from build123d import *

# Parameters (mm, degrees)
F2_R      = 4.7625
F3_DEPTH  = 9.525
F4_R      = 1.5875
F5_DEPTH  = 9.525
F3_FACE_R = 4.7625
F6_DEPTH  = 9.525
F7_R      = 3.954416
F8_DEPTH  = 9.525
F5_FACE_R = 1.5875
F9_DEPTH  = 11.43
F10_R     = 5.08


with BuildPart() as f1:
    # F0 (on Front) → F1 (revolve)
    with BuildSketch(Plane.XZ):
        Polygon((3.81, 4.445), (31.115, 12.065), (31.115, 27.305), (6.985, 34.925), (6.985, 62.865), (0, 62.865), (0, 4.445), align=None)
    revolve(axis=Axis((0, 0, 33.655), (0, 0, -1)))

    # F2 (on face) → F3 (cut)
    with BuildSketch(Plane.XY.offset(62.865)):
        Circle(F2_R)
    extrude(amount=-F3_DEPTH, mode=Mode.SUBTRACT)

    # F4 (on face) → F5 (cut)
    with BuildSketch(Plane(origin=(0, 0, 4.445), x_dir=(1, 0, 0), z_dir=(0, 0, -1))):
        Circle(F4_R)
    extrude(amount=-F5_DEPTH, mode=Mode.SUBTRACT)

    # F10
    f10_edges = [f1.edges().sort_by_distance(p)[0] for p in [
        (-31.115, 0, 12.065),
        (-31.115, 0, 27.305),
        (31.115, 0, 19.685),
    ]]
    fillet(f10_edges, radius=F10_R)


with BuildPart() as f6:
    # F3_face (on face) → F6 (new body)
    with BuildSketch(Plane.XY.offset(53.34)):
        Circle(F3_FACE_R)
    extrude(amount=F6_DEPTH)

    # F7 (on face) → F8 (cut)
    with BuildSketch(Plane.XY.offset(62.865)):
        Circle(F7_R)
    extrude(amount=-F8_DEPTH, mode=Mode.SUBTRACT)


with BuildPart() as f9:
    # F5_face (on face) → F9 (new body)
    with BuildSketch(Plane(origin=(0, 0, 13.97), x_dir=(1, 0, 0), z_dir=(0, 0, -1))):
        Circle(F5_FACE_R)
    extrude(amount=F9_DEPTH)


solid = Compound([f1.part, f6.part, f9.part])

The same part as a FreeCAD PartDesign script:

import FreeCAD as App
import Part
import Sketcher
Q = App.Units.Quantity


def edges_at(feature, points):
    """Names of the edges that pass closest to the given points."""
    edges = feature.Shape.Edges
    near = lambda p: min(range(len(edges)), key=lambda i: edges[i].distToShape(Part.Vertex(*p))[0])
    return sorted({f"Edge{near(p) + 1}" for p in points})


def add_polygon(sketch, points):
    """Adds a closed chain of lines whose ends are joined by coincident constraints."""
    first, n = sketch.GeometryCount, len(points)
    for a, b in zip(points, points[1:] + points[:1]):
        sketch.addGeometry(Part.LineSegment(App.Vector(*a, 0), App.Vector(*b, 0)), False)
    for i in range(n):
        sketch.addConstraint(Sketcher.Constraint("Coincident", first + i, 2, first + (i + 1) % n, 1))

doc = App.newDocument("Part")
body = doc.addObject("PartDesign::Body", "Body")

# Sketch on XZ plane
sketch1 = body.newObject("Sketcher::SketchObject", "Sketch")
sketch1.AttachmentSupport = (doc.getObject("XZ_Plane"), [""])
sketch1.MapMode = "FlatFace"
add_polygon(sketch1, [(3.81, 4.445), (31.115, 12.065), (31.115, 27.305), (6.985, 34.925), (6.985, 62.865), (0, 62.865), (0, 4.445)])  # lines 0-6
sketch1.addConstraint(Sketcher.Constraint("Vertical", 1))
sketch1.addConstraint(Sketcher.Constraint("Vertical", 3))
sketch1.addConstraint(Sketcher.Constraint("Horizontal", 4))
sketch1.addConstraint(Sketcher.Constraint("Vertical", 5))
sketch1.addConstraint(Sketcher.Constraint("Horizontal", 6))
sketch1.addConstraint(Sketcher.Constraint("PointOnObject", 4, 2, -2))
sketch1.addConstraint(Sketcher.Constraint("DistanceY", 1, 1, 1, 2, Q("0.6 in")))
sketch1.addConstraint(Sketcher.Constraint("DistanceY", 3, 1, 3, 2, Q("1.1 in")))
sketch1.addConstraint(Sketcher.Constraint("DistanceY", 5, 2, 5, 1, Q("2.3 in")))
sketch1.addConstraint(Sketcher.Constraint("DistanceY", 0, 2, 3, 2, Q("2 in")))
sketch1.addConstraint(Sketcher.Constraint("DistanceX", 6, 1, 6, 2, Q("0.15 in")))
sketch1.addConstraint(Sketcher.Constraint("DistanceX", 4, 2, 4, 1, Q("0.275 in")))
sketch1.addConstraint(Sketcher.Constraint("DistanceX", 2, 2, 1, 2, Q("0.95 in")))
sketch1.addConstraint(Sketcher.Constraint("DistanceY", -1, 1, 0, 2, Q("0.475 in")))
revolution = body.newObject("PartDesign::Revolution", "Revolution")
revolution.Profile = sketch1
revolution.ReferenceAxis = (sketch1, ["V_Axis"])
revolution.Angle = 360

# Sketch on XY plane
sketch2 = body.newObject("Sketcher::SketchObject", "Sketch001")
sketch2.AttachmentSupport = (doc.getObject("XY_Plane"), [""])
sketch2.MapMode = "FlatFace"
sketch2.AttachmentOffset = App.Placement(App.Vector(0, 0, 2.475 * 25.4), App.Rotation())
sketch2.addGeometry(Part.Circle(App.Vector(0, 0, 0), App.Vector(0, 0, 1), 4.7625), False)
sketch2.addConstraint(Sketcher.Constraint("Coincident", 0, 3, -1, 1))
sketch2.addConstraint(Sketcher.Constraint("Diameter", 0, Q("0.375 in")))
pocket1 = body.newObject("PartDesign::Pocket", "Pocket")
pocket1.Profile = sketch2
pocket1.Length = Q("0.375 in")

# Sketch on XY plane
sketch3 = body.newObject("Sketcher::SketchObject", "Sketch002")
sketch3.AttachmentSupport = (doc.getObject("XY_Plane"), [""])
sketch3.MapMode = "FlatFace"
sketch3.AttachmentOffset = App.Placement(App.Vector(0, 0, 0.175 * 25.4), App.Rotation())
sketch3.addGeometry(Part.Circle(App.Vector(0, 0, 0), App.Vector(0, 0, 1), 1.5875), False)
sketch3.addConstraint(Sketcher.Constraint("Coincident", 0, 3, -1, 1))
sketch3.addConstraint(Sketcher.Constraint("Diameter", 0, Q("0.125 in")))
pocket2 = body.newObject("PartDesign::Pocket", "Pocket001")
pocket2.Profile = sketch3
pocket2.Length = Q("0.375 in")
pocket2.Reversed = True
doc.recompute()

fillet = body.newObject("PartDesign::Fillet", "Fillet")
fillet.Base = (pocket2, edges_at(pocket2, [(-31.115, 0, 12.065), (-31.115, 0, 27.305), (31.115, 0, 19.685)]))
fillet.Radius = Q("0.2 in")
body2 = doc.addObject("PartDesign::Body", "Body001")

# Sketch on XY plane
sketch4 = body2.newObject("Sketcher::SketchObject", "Sketch003")
sketch4.AttachmentSupport = (doc.getObject("XY_Plane001"), [""])
sketch4.MapMode = "FlatFace"
sketch4.AttachmentOffset = App.Placement(App.Vector(0, 0, 2.1 * 25.4), App.Rotation())
sketch4.addGeometry(Part.Circle(App.Vector(0, 0, 0), App.Vector(0, 0, 1), 4.7625), False)
sketch4.addConstraint(Sketcher.Constraint("Coincident", 0, 3, -1, 1))
sketch4.addConstraint(Sketcher.Constraint("Diameter", 0, Q("0.375 in")))
pad1 = body2.newObject("PartDesign::Pad", "Pad")
pad1.Profile = sketch4
pad1.Length = Q("0.375 in")

# Sketch on XY plane
sketch5 = body2.newObject("Sketcher::SketchObject", "Sketch004")
sketch5.AttachmentSupport = (doc.getObject("XY_Plane001"), [""])
sketch5.MapMode = "FlatFace"
sketch5.AttachmentOffset = App.Placement(App.Vector(0, 0, 2.475 * 25.4), App.Rotation())
sketch5.addGeometry(Part.Circle(App.Vector(0, 0, 0), App.Vector(0, 0, 1), 3.954416), False)
sketch5.addConstraint(Sketcher.Constraint("Coincident", 0, 3, -1, 1))
sketch5.addConstraint(Sketcher.Constraint("Diameter", 0, 7.908832))
pocket3 = body2.newObject("PartDesign::Pocket", "Pocket002")
pocket3.Profile = sketch5
pocket3.Length = Q("0.375 in")
body3 = doc.addObject("PartDesign::Body", "Body002")

# Sketch on XY plane
sketch6 = body3.newObject("Sketcher::SketchObject", "Sketch005")
sketch6.AttachmentSupport = (doc.getObject("XY_Plane002"), [""])
sketch6.MapMode = "FlatFace"
sketch6.AttachmentOffset = App.Placement(App.Vector(0, 0, 0.55 * 25.4), App.Rotation())
sketch6.addGeometry(Part.Circle(App.Vector(0, 0, 0), App.Vector(0, 0, 1), 1.5875), False)
sketch6.addConstraint(Sketcher.Constraint("Coincident", 0, 3, -1, 1))
sketch6.addConstraint(Sketcher.Constraint("Diameter", 0, Q("0.125 in")))
pad2 = body3.newObject("PartDesign::Pad", "Pad001")
pad2.Profile = sketch6
pad2.Length = Q("0.45 in")
pad2.Reversed = True

doc.recompute()
